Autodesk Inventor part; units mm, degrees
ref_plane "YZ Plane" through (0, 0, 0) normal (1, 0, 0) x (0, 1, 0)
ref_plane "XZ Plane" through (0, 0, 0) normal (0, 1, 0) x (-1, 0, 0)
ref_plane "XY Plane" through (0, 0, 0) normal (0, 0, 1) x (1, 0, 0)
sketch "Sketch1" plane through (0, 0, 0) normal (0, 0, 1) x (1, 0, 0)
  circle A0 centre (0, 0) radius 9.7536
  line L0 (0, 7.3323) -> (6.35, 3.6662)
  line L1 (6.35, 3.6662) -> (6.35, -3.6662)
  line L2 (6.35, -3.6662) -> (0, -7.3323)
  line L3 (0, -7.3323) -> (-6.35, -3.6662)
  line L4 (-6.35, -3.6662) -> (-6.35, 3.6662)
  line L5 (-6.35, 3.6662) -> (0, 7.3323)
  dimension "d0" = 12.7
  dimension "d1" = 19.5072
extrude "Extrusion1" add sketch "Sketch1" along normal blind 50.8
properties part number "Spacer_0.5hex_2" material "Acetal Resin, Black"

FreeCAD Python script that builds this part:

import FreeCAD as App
import Part
import Sketcher
from FreeCAD import Vector
Q = App.Units.Quantity


def add_polygon(sketch, points):
    """Adds a closed chain of lines whose ends are joined by coincident constraints."""
    first, n = sketch.GeometryCount, len(points)
    for a, b in zip(points, points[1:] + points[:1]):
        sketch.addGeometry(Part.LineSegment(App.Vector(*a, 0), App.Vector(*b, 0)), False)
    for i in range(n):
        sketch.addConstraint(Sketcher.Constraint("Coincident", first + i, 2, first + (i + 1) % n, 1))

doc = App.newDocument("Part")
body = doc.addObject("PartDesign::Body", "Body")

sketch1 = body.newObject("Sketcher::SketchObject", "Sketch")
sketch1.AttachmentSupport = (doc.getObject("XY_Plane"), [""])
sketch1.MapMode = "FlatFace"
sketch1.addGeometry(Part.Circle(Vector(0, 0, 0), Vector(0, 0, 1), 9.7536), False)
add_polygon(sketch1, [(-6.35, 3.6662), (0, 7.3323), (6.35, 3.6662), (6.35, -3.6662), (0, -7.3323), (-6.35, -3.6662)])
sketch1.addConstraint(Sketcher.Constraint("Vertical", 3))
sketch1.addConstraint(Sketcher.Constraint("Vertical", 6))
sketch1.addConstraint(Sketcher.Constraint("Coincident", 0, 3, -1, 1))
sketch1.addConstraint(Sketcher.Constraint("Symmetric", 1, 2, 4, 2, -1, 1))
sketch1.addConstraint(Sketcher.Constraint("Symmetric", 2, 2, 5, 2, -1, 1))
sketch1.addConstraint(Sketcher.Constraint("PointOnObject", 1, 2, -2))
sketch1.addConstraint(Sketcher.Constraint("Parallel", 1, 4))
sketch1.addConstraint(Sketcher.Constraint("Horizontal", 3, 2, 5, 2))
sketch1.addConstraint(Sketcher.Constraint("Diameter", 0, Q("0.768 in")))
sketch1.addConstraint(Sketcher.Constraint("DistanceX", 5, 2, 3, 2, Q("0.5 in")))
sketch1.addConstraint(Sketcher.Constraint("Angle", 1, Q("29.9995 deg")))
sketch1.addConstraint(Sketcher.Constraint("DistanceY", 3, 2, 1, 2, Q("0.433 in")))
pad1 = body.newObject("PartDesign::Pad", "Pad")
pad1.Profile = sketch1
pad1.Length = Q("2 in")

doc.recompute()
